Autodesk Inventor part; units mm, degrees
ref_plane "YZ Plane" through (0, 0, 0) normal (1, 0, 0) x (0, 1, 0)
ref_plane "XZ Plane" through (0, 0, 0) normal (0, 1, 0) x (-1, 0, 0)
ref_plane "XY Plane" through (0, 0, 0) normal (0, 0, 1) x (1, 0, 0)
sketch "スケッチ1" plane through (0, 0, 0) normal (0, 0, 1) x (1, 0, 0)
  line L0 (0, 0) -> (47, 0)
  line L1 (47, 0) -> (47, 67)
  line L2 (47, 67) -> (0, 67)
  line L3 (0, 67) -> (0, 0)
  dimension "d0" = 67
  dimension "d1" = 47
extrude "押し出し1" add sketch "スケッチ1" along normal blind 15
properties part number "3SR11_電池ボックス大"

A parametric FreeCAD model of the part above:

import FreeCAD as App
import Part
import Sketcher

doc = App.newDocument("Part")
params = doc.addObject("Spreadsheet::Sheet", "Params")
for row, (alias, value) in enumerate([
    ("sketch1_width", "47 mm"),
    ("sketch1_height", "67 mm"),
    ("pad1_length", "15 mm"),
], start=1):
    params.set(f"A{row}", alias)
    params.set(f"B{row}", "=" + value)
    params.setAlias(f"B{row}", alias)

body = doc.addObject("PartDesign::Body", "Body")

sketch1 = body.newObject("Sketcher::SketchObject", "Sketch")
sketch1.AttachmentSupport = (doc.getObject("XY_Plane"), [""])
sketch1.MapMode = "FlatFace"
sketch1.addGeometry([
    Part.LineSegment(App.Vector(0, 67, 0), App.Vector(0, 0, 0)),
    Part.LineSegment(App.Vector(0, 0, 0), App.Vector(47, 0, 0)),
    Part.LineSegment(App.Vector(47, 0, 0), App.Vector(47, 67, 0)),
    Part.LineSegment(App.Vector(47, 67, 0), App.Vector(0, 67, 0)),
], False)
sketch1.addConstraint([
    Sketcher.Constraint("Coincident", 0, 2, 1, 1),
    Sketcher.Constraint("Coincident", 1, 2, 2, 1),
    Sketcher.Constraint("Coincident", 2, 2, 3, 1),
    Sketcher.Constraint("Coincident", 3, 2, 0, 1),
    Sketcher.Constraint("Vertical", 0),
    Sketcher.Constraint("Horizontal", 1),
    Sketcher.Constraint("Vertical", 2),
    Sketcher.Constraint("Horizontal", 3),
    Sketcher.Constraint("Coincident", 0, 2, -1, 1),
    Sketcher.Constraint("DistanceX", 1, 1, 1, 2, 47.0),
    Sketcher.Constraint("DistanceY", 0, 2, 0, 1, 67.0),
])
sketch1.setExpression("Constraints[9]", "Params.sketch1_width")
sketch1.setExpression("Constraints[10]", "Params.sketch1_height")
pad1 = body.newObject("PartDesign::Pad", "Pad")
pad1.Profile = sketch1
pad1.setExpression("Length", "Params.pad1_length")

doc.recompute()
